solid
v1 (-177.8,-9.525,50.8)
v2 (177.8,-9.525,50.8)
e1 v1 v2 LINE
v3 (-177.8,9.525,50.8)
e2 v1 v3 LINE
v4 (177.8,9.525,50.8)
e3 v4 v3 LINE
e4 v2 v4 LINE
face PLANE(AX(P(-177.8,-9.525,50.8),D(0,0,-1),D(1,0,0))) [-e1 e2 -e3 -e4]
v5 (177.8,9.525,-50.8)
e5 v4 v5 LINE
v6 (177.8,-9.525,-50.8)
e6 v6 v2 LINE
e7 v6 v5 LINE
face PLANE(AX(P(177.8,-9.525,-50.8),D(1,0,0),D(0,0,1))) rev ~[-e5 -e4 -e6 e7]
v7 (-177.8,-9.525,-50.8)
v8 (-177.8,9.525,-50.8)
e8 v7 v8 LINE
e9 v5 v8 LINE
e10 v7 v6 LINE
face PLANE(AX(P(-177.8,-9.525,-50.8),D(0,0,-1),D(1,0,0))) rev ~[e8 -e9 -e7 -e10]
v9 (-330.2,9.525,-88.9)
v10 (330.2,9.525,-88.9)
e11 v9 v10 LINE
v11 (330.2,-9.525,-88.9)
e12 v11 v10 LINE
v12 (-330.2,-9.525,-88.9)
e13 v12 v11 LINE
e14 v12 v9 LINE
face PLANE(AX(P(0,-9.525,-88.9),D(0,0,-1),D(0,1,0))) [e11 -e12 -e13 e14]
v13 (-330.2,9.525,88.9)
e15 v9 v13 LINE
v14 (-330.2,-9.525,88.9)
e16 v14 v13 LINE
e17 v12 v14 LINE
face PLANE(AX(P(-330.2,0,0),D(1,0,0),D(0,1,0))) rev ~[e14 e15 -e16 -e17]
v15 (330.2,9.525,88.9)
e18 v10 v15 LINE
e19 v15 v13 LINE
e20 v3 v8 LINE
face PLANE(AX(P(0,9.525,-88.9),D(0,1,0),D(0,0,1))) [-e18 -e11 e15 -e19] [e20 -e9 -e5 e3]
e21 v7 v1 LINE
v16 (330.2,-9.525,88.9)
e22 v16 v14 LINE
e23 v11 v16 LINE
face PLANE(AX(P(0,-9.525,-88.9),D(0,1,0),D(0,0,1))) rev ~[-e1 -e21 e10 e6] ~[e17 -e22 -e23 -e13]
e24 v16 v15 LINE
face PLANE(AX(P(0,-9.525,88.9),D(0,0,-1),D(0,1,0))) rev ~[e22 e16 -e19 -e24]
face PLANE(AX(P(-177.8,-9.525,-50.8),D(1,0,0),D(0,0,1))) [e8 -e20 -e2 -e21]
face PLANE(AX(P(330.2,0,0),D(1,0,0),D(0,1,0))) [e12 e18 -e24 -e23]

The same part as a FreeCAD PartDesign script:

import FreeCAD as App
import Part
import Sketcher

V = App.Vector
Q = App.Units.Quantity


def add_polygon(sketch, points):
    """Adds a closed chain of lines whose ends are joined by coincident constraints."""
    first, n = sketch.GeometryCount, len(points)
    for a, b in zip(points, points[1:] + points[:1]):
        sketch.addGeometry(Part.LineSegment(App.Vector(*a, 0), App.Vector(*b, 0)), False)
    for i in range(n):
        sketch.addConstraint(Sketcher.Constraint("Coincident", first + i, 2, first + (i + 1) % n, 1))

doc = App.newDocument("Part")
params = doc.addObject("Spreadsheet::Sheet", "Params")
for row, (alias, value) in enumerate([
    ("sketch1_height", "7 in"),
    ("sketch1_width", "0.75 in"),
    ("pad1_length", "26 in"),
    ("sketch2_width", "14 in"),
    ("sketch2_height", "4 in"),
    ("pocket1_length", "1 in"),
], start=1):
    params.set(f"A{row}", alias)
    params.set(f"B{row}", "=" + value)
    params.setAlias(f"B{row}", alias)

body = doc.addObject("PartDesign::Body", "Body")

# Sketch on YZ plane
sketch1 = body.newObject("Sketcher::SketchObject", "Sketch")
sketch1.AttachmentSupport = (doc.getObject("YZ_Plane"), [""])
sketch1.MapMode = "FlatFace"
add_polygon(sketch1, [(-10, 89), (-10, -89), (10, -89), (10, 89)])  # lines 0-3
sketch1.addConstraint([
    Sketcher.Constraint("Vertical", 0),
    Sketcher.Constraint("Horizontal", 1),
    Sketcher.Constraint("Vertical", 2),
    Sketcher.Constraint("Horizontal", 3),
    Sketcher.Constraint("Symmetric", 0, 2, 2, 2, -1, 1),
    Sketcher.Constraint("DistanceY", 0, 2, 0, 1, Q("7 in")),
    Sketcher.Constraint("DistanceX", 1, 1, 1, 2, Q("0.75 in")),
])
sketch1.setExpression("Constraints[9]", "Params.sketch1_height")
sketch1.setExpression("Constraints[10]", "Params.sketch1_width")
pad1 = body.newObject("PartDesign::Pad", "Pad")
pad1.Profile = sketch1
pad1.setExpression("Length", "Params.pad1_length")
pad1.Midplane = True

# Sketch on XZ plane
sketch2 = body.newObject("Sketcher::SketchObject", "Sketch001")
sketch2.AttachmentSupport = (doc.getObject("XZ_Plane"), [""])
sketch2.MapMode = "FlatFace"
sketch2.AttachmentOffset = App.Placement(V(0, 0, 0.375 * 25.4), App.Rotation())
add_polygon(sketch2, [(-178, 51), (-178, -51), (178, -51), (178, 51)])  # lines 0-3
sketch2.addConstraint([
    Sketcher.Constraint("Vertical", 0),
    Sketcher.Constraint("Horizontal", 1),
    Sketcher.Constraint("Vertical", 2),
    Sketcher.Constraint("Horizontal", 3),
    Sketcher.Constraint("Symmetric", 0, 2, 2, 2, -1, 1),
    Sketcher.Constraint("DistanceX", 1, 1, 1, 2, Q("14 in")),
    Sketcher.Constraint("DistanceY", 0, 2, 0, 1, Q("4 in")),
])
sketch2.setExpression("Constraints[9]", "Params.sketch2_width")
sketch2.setExpression("Constraints[10]", "Params.sketch2_height")
pocket1 = body.newObject("PartDesign::Pocket", "Pocket")
pocket1.Profile = sketch2
pocket1.setExpression("Length", "Params.pocket1_length")

doc.recompute()
